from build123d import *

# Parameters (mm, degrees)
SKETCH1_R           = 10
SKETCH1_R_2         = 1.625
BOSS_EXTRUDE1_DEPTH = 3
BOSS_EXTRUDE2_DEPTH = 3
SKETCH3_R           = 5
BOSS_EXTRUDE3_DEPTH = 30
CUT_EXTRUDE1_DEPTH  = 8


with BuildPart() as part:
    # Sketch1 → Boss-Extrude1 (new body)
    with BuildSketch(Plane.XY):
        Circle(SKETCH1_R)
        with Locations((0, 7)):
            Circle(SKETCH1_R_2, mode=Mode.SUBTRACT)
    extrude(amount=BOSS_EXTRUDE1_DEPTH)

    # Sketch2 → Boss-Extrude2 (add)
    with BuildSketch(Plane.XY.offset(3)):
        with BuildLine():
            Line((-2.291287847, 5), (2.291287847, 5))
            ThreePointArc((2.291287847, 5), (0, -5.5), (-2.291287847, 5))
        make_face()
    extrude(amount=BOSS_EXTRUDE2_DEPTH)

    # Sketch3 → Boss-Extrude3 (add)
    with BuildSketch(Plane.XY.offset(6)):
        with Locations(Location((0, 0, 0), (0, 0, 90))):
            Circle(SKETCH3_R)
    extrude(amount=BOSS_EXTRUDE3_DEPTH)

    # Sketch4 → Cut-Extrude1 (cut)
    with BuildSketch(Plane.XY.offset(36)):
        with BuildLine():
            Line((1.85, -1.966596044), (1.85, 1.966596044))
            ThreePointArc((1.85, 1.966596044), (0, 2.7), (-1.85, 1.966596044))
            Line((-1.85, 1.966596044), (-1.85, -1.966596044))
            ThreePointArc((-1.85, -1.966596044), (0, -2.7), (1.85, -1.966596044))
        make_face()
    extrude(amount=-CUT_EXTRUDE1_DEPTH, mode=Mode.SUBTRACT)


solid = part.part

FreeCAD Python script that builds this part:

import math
import FreeCAD as App
import Part
import Sketcher
from FreeCAD import Vector
Q = App.Units.Quantity

doc = App.newDocument("Part")
params = doc.addObject("Spreadsheet::Sheet", "Params")
for row, (alias, value) in enumerate([
    ("sketch1_diameter", "20 mm"),
    ("sketch1_diameter2", "3.25 mm"),
    ("pad1_length", "3 mm"),
    ("sketch2_radius", "5.5 mm"),
    ("pad2_length", "3 mm"),
    ("sketch3_diameter", "10 mm"),
    ("pad3_length", "30 mm"),
    ("sketch4_radius", "2.7 mm"),
    ("pocket1_length", "8 mm"),
], start=1):
    params.set(f"A{row}", alias)
    params.set(f"B{row}", "=" + value)
    params.setAlias(f"B{row}", alias)

body = doc.addObject("PartDesign::Body", "Body")

# Sketch on XY plane
sketch1 = body.newObject("Sketcher::SketchObject", "Sketch")
sketch1.AttachmentSupport = (doc.getObject("XY_Plane"), [""])
sketch1.MapMode = "FlatFace"
sketch1.addGeometry([
    Part.Circle(Vector(0, 0, 0), Vector(0, 0, 1), 10),
    Part.Circle(Vector(0, 7, 0), Vector(0, 0, 1), 1.6),
], False)
sketch1.addConstraint([
    Sketcher.Constraint("Coincident", 0, 3, -1, 1),
    Sketcher.Constraint("PointOnObject", 1, 3, -2),
    Sketcher.Constraint("Diameter", 0, Q("20 mm")),
    Sketcher.Constraint("Diameter", 1, Q("3.25 mm")),
    Sketcher.Constraint("DistanceY", -1, 1, 1, 3, Q("7 mm")),
])
sketch1.setExpression("Constraints[2]", "Params.sketch1_diameter")
sketch1.setExpression("Constraints[3]", "Params.sketch1_diameter2")
pad1 = body.newObject("PartDesign::Pad", "Pad")
pad1.Profile = sketch1
pad1.setExpression("Length", "Params.pad1_length")

# Sketch on XY plane
sketch2 = body.newObject("Sketcher::SketchObject", "Sketch001")
sketch2.AttachmentSupport = (doc.getObject("XY_Plane"), [""])
sketch2.MapMode = "FlatFace"
sketch2.AttachmentOffset = App.Placement(Vector(0, 0, 3), App.Rotation())
sketch2.addGeometry([
    Part.LineSegment(Vector(2.3, 5, 0), Vector(-2.3, 5, 0)),
    Part.ArcOfCircle(Part.Circle(Vector(0, 0, 0), Vector(0, 0, 1), 5.5), math.radians(115), math.radians(425)),
], False)
sketch2.addConstraint([
    Sketcher.Constraint("Coincident", 0, 1, 1, 2),
    Sketcher.Constraint("Coincident", 1, 1, 0, 2),
    Sketcher.Constraint("Horizontal", 0),
    Sketcher.Constraint("Coincident", 1, 3, -1, 1),
    Sketcher.Constraint("Radius", 1, Q("5.5 mm")),
    Sketcher.Constraint("DistanceY", -1, 1, 0, 1, Q("5 mm")),
])
sketch2.setExpression("Constraints[4]", "Params.sketch2_radius")
pad2 = body.newObject("PartDesign::Pad", "Pad001")
pad2.Profile = sketch2
pad2.setExpression("Length", "Params.pad2_length")

# Sketch on XY plane
sketch3 = body.newObject("Sketcher::SketchObject", "Sketch002")
sketch3.AttachmentSupport = (doc.getObject("XY_Plane"), [""])
sketch3.MapMode = "FlatFace"
sketch3.AttachmentOffset = App.Placement(Vector(0, 0, 6), App.Rotation())
sketch3.addGeometry(Part.Circle(Vector(0, 0, 0), Vector(0, 0, 1), 5), False)
sketch3.addConstraint([
    Sketcher.Constraint("Coincident", 0, 3, -1, 1),
    Sketcher.Constraint("Diameter", 0, Q("10 mm")),
])
sketch3.setExpression("Constraints[1]", "Params.sketch3_diameter")
pad3 = body.newObject("PartDesign::Pad", "Pad002")
pad3.Profile = sketch3
pad3.setExpression("Length", "Params.pad3_length")

# Sketch on XY plane
sketch4 = body.newObject("Sketcher::SketchObject", "Sketch003")
sketch4.AttachmentSupport = (doc.getObject("XY_Plane"), [""])
sketch4.MapMode = "FlatFace"
sketch4.AttachmentOffset = App.Placement(Vector(0, 0, 36), App.Rotation())
sketch4.addGeometry([
    Part.LineSegment(Vector(1.9, -2, 0), Vector(1.9, 2, 0)),
    Part.ArcOfCircle(Part.Circle(Vector(0, 0, 0), Vector(0, 0, 1), 2.7), math.radians(47), math.radians(133)),
    Part.LineSegment(Vector(-1.9, 2, 0), Vector(-1.9, -2, 0)),
    Part.ArcOfCircle(Part.Circle(Vector(0, 0, 0), Vector(0, 0, 1), 2.7), math.radians(-133), math.radians(-47)),
], False)
sketch4.addConstraint([
    Sketcher.Constraint("Coincident", 0, 2, 1, 1),
    Sketcher.Constraint("Coincident", 1, 2, 2, 1),
    Sketcher.Constraint("Coincident", 2, 2, 3, 1),
    Sketcher.Constraint("Coincident", 3, 2, 0, 1),
    Sketcher.Constraint("Vertical", 0),
    Sketcher.Constraint("Vertical", 2),
    Sketcher.Constraint("Coincident", 1, 3, -1, 1),
    Sketcher.Constraint("Coincident", 3, 3, -1, 1),
    Sketcher.Constraint("Equal", 1, 3),
    Sketcher.Constraint("Horizontal", 0, 2, 1, 2),
    Sketcher.Constraint("Radius", 1, Q("2.7 mm")),
    Sketcher.Constraint("DistanceX", 1, 2, 0, 2, Q("3.7 mm")),
])
sketch4.setExpression("Constraints[10]", "Params.sketch4_radius")
pocket1 = body.newObject("PartDesign::Pocket", "Pocket")
pocket1.Profile = sketch4
pocket1.setExpression("Length", "Params.pocket1_length")

doc.recompute()
